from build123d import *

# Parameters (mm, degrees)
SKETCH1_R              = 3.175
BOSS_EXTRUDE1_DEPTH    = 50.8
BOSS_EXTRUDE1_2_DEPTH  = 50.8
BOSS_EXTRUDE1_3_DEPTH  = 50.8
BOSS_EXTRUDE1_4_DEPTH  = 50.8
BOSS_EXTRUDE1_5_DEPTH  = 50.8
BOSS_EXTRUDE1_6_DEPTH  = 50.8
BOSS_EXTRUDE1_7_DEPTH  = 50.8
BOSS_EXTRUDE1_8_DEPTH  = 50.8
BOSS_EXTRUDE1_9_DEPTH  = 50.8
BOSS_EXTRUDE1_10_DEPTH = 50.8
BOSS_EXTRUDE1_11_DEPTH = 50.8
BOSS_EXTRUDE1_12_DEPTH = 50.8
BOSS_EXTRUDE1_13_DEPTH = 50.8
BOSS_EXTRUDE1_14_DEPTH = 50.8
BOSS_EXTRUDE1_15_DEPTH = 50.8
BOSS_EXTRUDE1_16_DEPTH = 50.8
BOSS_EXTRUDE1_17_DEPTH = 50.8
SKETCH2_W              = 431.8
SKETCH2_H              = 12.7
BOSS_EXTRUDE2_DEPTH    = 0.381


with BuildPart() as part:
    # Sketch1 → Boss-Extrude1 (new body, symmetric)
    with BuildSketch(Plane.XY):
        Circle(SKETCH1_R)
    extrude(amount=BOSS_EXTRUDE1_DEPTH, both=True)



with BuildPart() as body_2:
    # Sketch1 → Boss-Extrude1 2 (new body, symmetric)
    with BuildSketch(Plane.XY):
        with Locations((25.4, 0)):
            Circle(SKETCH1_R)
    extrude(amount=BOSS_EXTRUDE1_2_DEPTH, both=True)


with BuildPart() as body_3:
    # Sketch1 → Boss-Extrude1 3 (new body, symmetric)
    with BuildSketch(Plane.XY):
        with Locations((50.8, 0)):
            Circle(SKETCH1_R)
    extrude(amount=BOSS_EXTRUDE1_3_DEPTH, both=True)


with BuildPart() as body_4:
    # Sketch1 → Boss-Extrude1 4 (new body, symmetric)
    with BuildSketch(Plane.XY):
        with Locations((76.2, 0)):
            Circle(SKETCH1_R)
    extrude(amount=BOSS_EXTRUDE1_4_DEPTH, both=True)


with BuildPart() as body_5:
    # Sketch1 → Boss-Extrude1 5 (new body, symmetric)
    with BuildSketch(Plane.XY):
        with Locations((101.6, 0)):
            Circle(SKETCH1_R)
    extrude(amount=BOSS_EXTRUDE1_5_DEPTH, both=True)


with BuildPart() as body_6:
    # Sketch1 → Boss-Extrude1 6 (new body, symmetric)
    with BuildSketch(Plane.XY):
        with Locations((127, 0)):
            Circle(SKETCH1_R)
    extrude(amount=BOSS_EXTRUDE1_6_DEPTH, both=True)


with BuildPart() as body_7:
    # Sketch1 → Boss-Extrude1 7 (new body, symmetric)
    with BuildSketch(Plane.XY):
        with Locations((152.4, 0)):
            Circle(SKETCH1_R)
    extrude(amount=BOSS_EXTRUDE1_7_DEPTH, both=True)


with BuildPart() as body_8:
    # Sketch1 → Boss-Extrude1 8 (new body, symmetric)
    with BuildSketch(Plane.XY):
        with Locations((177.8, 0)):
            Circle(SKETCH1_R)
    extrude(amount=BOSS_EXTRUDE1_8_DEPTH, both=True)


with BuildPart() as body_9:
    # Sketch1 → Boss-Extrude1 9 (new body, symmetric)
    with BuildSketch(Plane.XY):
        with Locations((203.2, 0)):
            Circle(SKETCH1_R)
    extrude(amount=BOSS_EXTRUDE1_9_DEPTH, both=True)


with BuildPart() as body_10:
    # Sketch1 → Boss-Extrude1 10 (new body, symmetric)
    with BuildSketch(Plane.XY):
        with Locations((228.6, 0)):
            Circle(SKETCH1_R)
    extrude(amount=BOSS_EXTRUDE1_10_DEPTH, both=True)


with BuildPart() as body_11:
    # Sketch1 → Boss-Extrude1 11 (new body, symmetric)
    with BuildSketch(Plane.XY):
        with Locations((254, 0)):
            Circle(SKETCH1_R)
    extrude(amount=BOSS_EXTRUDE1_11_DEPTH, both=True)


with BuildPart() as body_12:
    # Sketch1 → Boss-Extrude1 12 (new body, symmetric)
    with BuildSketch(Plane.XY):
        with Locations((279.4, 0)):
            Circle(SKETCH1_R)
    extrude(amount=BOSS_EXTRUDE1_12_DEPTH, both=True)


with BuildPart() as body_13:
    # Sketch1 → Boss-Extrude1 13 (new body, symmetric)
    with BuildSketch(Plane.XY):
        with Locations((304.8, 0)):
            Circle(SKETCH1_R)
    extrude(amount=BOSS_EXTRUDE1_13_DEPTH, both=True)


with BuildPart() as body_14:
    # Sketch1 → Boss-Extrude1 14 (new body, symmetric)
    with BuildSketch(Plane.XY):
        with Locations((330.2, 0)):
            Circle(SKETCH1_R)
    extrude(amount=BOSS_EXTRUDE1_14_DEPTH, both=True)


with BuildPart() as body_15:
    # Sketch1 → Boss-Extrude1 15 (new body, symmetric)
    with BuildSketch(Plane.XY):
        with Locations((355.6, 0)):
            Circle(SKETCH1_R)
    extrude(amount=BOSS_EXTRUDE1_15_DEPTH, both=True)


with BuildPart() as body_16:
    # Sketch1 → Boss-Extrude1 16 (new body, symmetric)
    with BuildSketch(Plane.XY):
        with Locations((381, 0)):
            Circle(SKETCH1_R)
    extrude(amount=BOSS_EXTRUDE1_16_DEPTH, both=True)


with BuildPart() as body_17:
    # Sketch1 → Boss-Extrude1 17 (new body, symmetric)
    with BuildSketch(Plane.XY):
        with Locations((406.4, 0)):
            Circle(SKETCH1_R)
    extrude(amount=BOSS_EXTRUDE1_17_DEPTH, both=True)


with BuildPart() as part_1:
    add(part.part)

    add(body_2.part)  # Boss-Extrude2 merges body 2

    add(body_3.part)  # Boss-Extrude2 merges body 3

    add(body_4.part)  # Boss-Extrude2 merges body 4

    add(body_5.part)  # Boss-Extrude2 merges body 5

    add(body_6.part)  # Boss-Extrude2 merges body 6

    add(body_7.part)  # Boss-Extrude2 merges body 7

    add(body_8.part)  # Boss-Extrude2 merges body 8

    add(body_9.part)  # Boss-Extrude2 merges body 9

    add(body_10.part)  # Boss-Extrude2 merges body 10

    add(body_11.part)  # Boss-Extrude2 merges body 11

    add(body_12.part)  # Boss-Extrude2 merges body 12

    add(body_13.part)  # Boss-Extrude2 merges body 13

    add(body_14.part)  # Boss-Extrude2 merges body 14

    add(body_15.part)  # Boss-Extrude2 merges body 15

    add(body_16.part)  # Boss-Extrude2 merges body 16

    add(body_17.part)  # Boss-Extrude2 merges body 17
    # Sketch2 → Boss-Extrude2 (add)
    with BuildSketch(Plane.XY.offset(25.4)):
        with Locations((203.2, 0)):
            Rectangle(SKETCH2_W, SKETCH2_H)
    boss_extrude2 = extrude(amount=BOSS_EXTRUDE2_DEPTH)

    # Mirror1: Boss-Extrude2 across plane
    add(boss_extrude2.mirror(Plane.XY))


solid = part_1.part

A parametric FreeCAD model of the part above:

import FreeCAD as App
import Part
import Sketcher

V = App.Vector
Q = App.Units.Quantity

doc = App.newDocument("Part")
body = doc.addObject("PartDesign::Body", "Body")

sketch1 = doc.addObject("Sketcher::SketchObject", "Sketch")
body.addObject(sketch1)
sketch1.AttachmentSupport = (doc.XY_Plane, [""])
sketch1.MapMode = "FlatFace"
sketch1.addGeometry(Part.Circle(V(0, 0, 0), V(0, 0, 1), 3.2), False)
sketch1.addConstraint([
    Sketcher.Constraint("Coincident", 0, 3, -1, 1),
    Sketcher.Constraint("Diameter", 0, Q("0.25 in")),
])
pad1 = doc.addObject("PartDesign::Pad", "Pad")
body.addObject(pad1)
pad1.Profile = sketch1
pad1.Length = Q("4 in")
pad1.Midplane = True
body2 = doc.addObject("PartDesign::Body", "Body001")

sketch2 = doc.addObject("Sketcher::SketchObject", "Sketch001")
body2.addObject(sketch2)
sketch2.AttachmentSupport = (doc.getObject("XY_Plane001"), [""])
sketch2.MapMode = "FlatFace"
sketch2.addGeometry(Part.Circle(V(25.4, 0, 0), V(0, 0, 1), 3.2), False)
sketch2.addConstraint([
    Sketcher.Constraint("PointOnObject", 0, 3, -1),
    Sketcher.Constraint("Diameter", 0, Q("0.25 in")),
    Sketcher.Constraint("DistanceX", -1, 1, 0, 3, Q("1 in")),
])
pad2 = doc.addObject("PartDesign::Pad", "Pad001")
body2.addObject(pad2)
pad2.Profile = sketch2
pad2.Length = Q("4 in")
pad2.Midplane = True
body3 = doc.addObject("PartDesign::Body", "Body002")

sketch3 = doc.addObject("Sketcher::SketchObject", "Sketch002")
body3.addObject(sketch3)
sketch3.AttachmentSupport = (doc.getObject("XY_Plane002"), [""])
sketch3.MapMode = "FlatFace"
sketch3.addGeometry(Part.Circle(V(50.8, 0, 0), V(0, 0, 1), 3.2), False)
sketch3.addConstraint([
    Sketcher.Constraint("PointOnObject", 0, 3, -1),
    Sketcher.Constraint("Diameter", 0, Q("0.25 in")),
    Sketcher.Constraint("DistanceX", -1, 1, 0, 3, Q("2 in")),
])
pad3 = doc.addObject("PartDesign::Pad", "Pad002")
body3.addObject(pad3)
pad3.Profile = sketch3
pad3.Length = Q("4 in")
pad3.Midplane = True
body4 = doc.addObject("PartDesign::Body", "Body003")

sketch4 = doc.addObject("Sketcher::SketchObject", "Sketch003")
body4.addObject(sketch4)
sketch4.AttachmentSupport = (doc.getObject("XY_Plane003"), [""])
sketch4.MapMode = "FlatFace"
sketch4.addGeometry(Part.Circle(V(76.2, 0, 0), V(0, 0, 1), 3.2), False)
sketch4.addConstraint([
    Sketcher.Constraint("PointOnObject", 0, 3, -1),
    Sketcher.Constraint("Diameter", 0, Q("0.25 in")),
    Sketcher.Constraint("DistanceX", -1, 1, 0, 3, Q("3 in")),
])
pad4 = doc.addObject("PartDesign::Pad", "Pad003")
body4.addObject(pad4)
pad4.Profile = sketch4
pad4.Length = Q("4 in")
pad4.Midplane = True
body5 = doc.addObject("PartDesign::Body", "Body004")

sketch5 = doc.addObject("Sketcher::SketchObject", "Sketch004")
body5.addObject(sketch5)
sketch5.AttachmentSupport = (doc.getObject("XY_Plane004"), [""])
sketch5.MapMode = "FlatFace"
sketch5.addGeometry(Part.Circle(V(101.6, 0, 0), V(0, 0, 1), 3.2), False)
sketch5.addConstraint([
    Sketcher.Constraint("PointOnObject", 0, 3, -1),
    Sketcher.Constraint("Diameter", 0, Q("0.25 in")),
    Sketcher.Constraint("DistanceX", -1, 1, 0, 3, Q("4 in")),
])
pad5 = doc.addObject("PartDesign::Pad", "Pad004")
body5.addObject(pad5)
pad5.Profile = sketch5
pad5.Length = Q("4 in")
pad5.Midplane = True
body6 = doc.addObject("PartDesign::Body", "Body005")

sketch6 = doc.addObject("Sketcher::SketchObject", "Sketch005")
body6.addObject(sketch6)
sketch6.AttachmentSupport = (doc.getObject("XY_Plane005"), [""])
sketch6.MapMode = "FlatFace"
sketch6.addGeometry(Part.Circle(V(127, 0, 0), V(0, 0, 1), 3.2), False)
sketch6.addConstraint([
    Sketcher.Constraint("PointOnObject", 0, 3, -1),
    Sketcher.Constraint("Diameter", 0, Q("0.25 in")),
    Sketcher.Constraint("DistanceX", -1, 1, 0, 3, Q("5 in")),
])
pad6 = doc.addObject("PartDesign::Pad", "Pad005")
body6.addObject(pad6)
pad6.Profile = sketch6
pad6.Length = Q("4 in")
pad6.Midplane = True
body7 = doc.addObject("PartDesign::Body", "Body006")

sketch7 = doc.addObject("Sketcher::SketchObject", "Sketch006")
body7.addObject(sketch7)
sketch7.AttachmentSupport = (doc.getObject("XY_Plane006"), [""])
sketch7.MapMode = "FlatFace"
sketch7.addGeometry(Part.Circle(V(152.4, 0, 0), V(0, 0, 1), 3.2), False)
sketch7.addConstraint([
    Sketcher.Constraint("PointOnObject", 0, 3, -1),
    Sketcher.Constraint("Diameter", 0, Q("0.25 in")),
    Sketcher.Constraint("DistanceX", -1, 1, 0, 3, Q("6 in")),
])
pad7 = doc.addObject("PartDesign::Pad", "Pad006")
body7.addObject(pad7)
pad7.Profile = sketch7
pad7.Length = Q("4 in")
pad7.Midplane = True
body8 = doc.addObject("PartDesign::Body", "Body007")

sketch8 = doc.addObject("Sketcher::SketchObject", "Sketch007")
body8.addObject(sketch8)
sketch8.AttachmentSupport = (doc.getObject("XY_Plane007"), [""])
sketch8.MapMode = "FlatFace"
sketch8.addGeometry(Part.Circle(V(177.8, 0, 0), V(0, 0, 1), 3.2), False)
sketch8.addConstraint([
    Sketcher.Constraint("PointOnObject", 0, 3, -1),
    Sketcher.Constraint("Diameter", 0, Q("0.25 in")),
    Sketcher.Constraint("DistanceX", -1, 1, 0, 3, Q("7 in")),
])
pad8 = doc.addObject("PartDesign::Pad", "Pad007")
body8.addObject(pad8)
pad8.Profile = sketch8
pad8.Length = Q("4 in")
pad8.Midplane = True
body9 = doc.addObject("PartDesign::Body", "Body008")

sketch9 = doc.addObject("Sketcher::SketchObject", "Sketch008")
body9.addObject(sketch9)
sketch9.AttachmentSupport = (doc.getObject("XY_Plane008"), [""])
sketch9.MapMode = "FlatFace"
sketch9.addGeometry(Part.Circle(V(203.2, 0, 0), V(0, 0, 1), 3.2), False)
sketch9.addConstraint([
    Sketcher.Constraint("PointOnObject", 0, 3, -1),
    Sketcher.Constraint("Diameter", 0, Q("0.25 in")),
    Sketcher.Constraint("DistanceX", -1, 1, 0, 3, Q("8 in")),
])
pad9 = doc.addObject("PartDesign::Pad", "Pad008")
body9.addObject(pad9)
pad9.Profile = sketch9
pad9.Length = Q("4 in")
pad9.Midplane = True
body10 = doc.addObject("PartDesign::Body", "Body009")

sketch10 = doc.addObject("Sketcher::SketchObject", "Sketch009")
body10.addObject(sketch10)
sketch10.AttachmentSupport = (doc.getObject("XY_Plane009"), [""])
sketch10.MapMode = "FlatFace"
sketch10.addGeometry(Part.Circle(V(228.6, 0, 0), V(0, 0, 1), 3.2), False)
sketch10.addConstraint([
    Sketcher.Constraint("PointOnObject", 0, 3, -1),
    Sketcher.Constraint("Diameter", 0, Q("0.25 in")),
    Sketcher.Constraint("DistanceX", -1, 1, 0, 3, Q("9 in")),
])
pad10 = doc.addObject("PartDesign::Pad", "Pad009")
body10.addObject(pad10)
pad10.Profile = sketch10
pad10.Length = Q("4 in")
pad10.Midplane = True
body11 = doc.addObject("PartDesign::Body", "Body010")

sketch11 = doc.addObject("Sketcher::SketchObject", "Sketch010")
body11.addObject(sketch11)
sketch11.AttachmentSupport = (doc.getObject("XY_Plane010"), [""])
sketch11.MapMode = "FlatFace"
sketch11.addGeometry(Part.Circle(V(254, 0, 0), V(0, 0, 1), 3.2), False)
sketch11.addConstraint([
    Sketcher.Constraint("PointOnObject", 0, 3, -1),
    Sketcher.Constraint("Diameter", 0, Q("0.25 in")),
    Sketcher.Constraint("DistanceX", -1, 1, 0, 3, Q("10 in")),
])
pad11 = doc.addObject("PartDesign::Pad", "Pad010")
body11.addObject(pad11)
pad11.Profile = sketch11
pad11.Length = Q("4 in")
pad11.Midplane = True
body12 = doc.addObject("PartDesign::Body", "Body011")

sketch12 = doc.addObject("Sketcher::SketchObject", "Sketch011")
body12.addObject(sketch12)
sketch12.AttachmentSupport = (doc.getObject("XY_Plane011"), [""])
sketch12.MapMode = "FlatFace"
sketch12.addGeometry(Part.Circle(V(279.4, 0, 0), V(0, 0, 1), 3.2), False)
sketch12.addConstraint([
    Sketcher.Constraint("PointOnObject", 0, 3, -1),
    Sketcher.Constraint("Diameter", 0, Q("0.25 in")),
    Sketcher.Constraint("DistanceX", -1, 1, 0, 3, Q("11 in")),
])
pad12 = doc.addObject("PartDesign::Pad", "Pad011")
body12.addObject(pad12)
pad12.Profile = sketch12
pad12.Length = Q("4 in")
pad12.Midplane = True
body13 = doc.addObject("PartDesign::Body", "Body012")

sketch13 = doc.addObject("Sketcher::SketchObject", "Sketch012")
body13.addObject(sketch13)
sketch13.AttachmentSupport = (doc.getObject("XY_Plane012"), [""])
sketch13.MapMode = "FlatFace"
sketch13.addGeometry(Part.Circle(V(304.8, 0, 0), V(0, 0, 1), 3.2), False)
sketch13.addConstraint([
    Sketcher.Constraint("PointOnObject", 0, 3, -1),
    Sketcher.Constraint("Diameter", 0, Q("0.25 in")),
    Sketcher.Constraint("DistanceX", -1, 1, 0, 3, Q("12 in")),
])
pad13 = doc.addObject("PartDesign::Pad", "Pad012")
body13.addObject(pad13)
pad13.Profile = sketch13
pad13.Length = Q("4 in")
pad13.Midplane = True
body14 = doc.addObject("PartDesign::Body", "Body013")

sketch14 = doc.addObject("Sketcher::SketchObject", "Sketch013")
body14.addObject(sketch14)
sketch14.AttachmentSupport = (doc.getObject("XY_Plane013"), [""])
sketch14.MapMode = "FlatFace"
sketch14.addGeometry(Part.Circle(V(330.2, 0, 0), V(0, 0, 1), 3.2), False)
sketch14.addConstraint([
    Sketcher.Constraint("PointOnObject", 0, 3, -1),
    Sketcher.Constraint("Diameter", 0, Q("0.25 in")),
    Sketcher.Constraint("DistanceX", -1, 1, 0, 3, Q("13 in")),
])
pad14 = doc.addObject("PartDesign::Pad", "Pad013")
body14.addObject(pad14)
pad14.Profile = sketch14
pad14.Length = Q("4 in")
pad14.Midplane = True
body15 = doc.addObject("PartDesign::Body", "Body014")

sketch15 = doc.addObject("Sketcher::SketchObject", "Sketch014")
body15.addObject(sketch15)
sketch15.AttachmentSupport = (doc.getObject("XY_Plane014"), [""])
sketch15.MapMode = "FlatFace"
sketch15.addGeometry(Part.Circle(V(355.6, 0, 0), V(0, 0, 1), 3.2), False)
sketch15.addConstraint([
    Sketcher.Constraint("PointOnObject", 0, 3, -1),
    Sketcher.Constraint("Diameter", 0, Q("0.25 in")),
    Sketcher.Constraint("DistanceX", -1, 1, 0, 3, Q("14 in")),
])
pad15 = doc.addObject("PartDesign::Pad", "Pad014")
body15.addObject(pad15)
pad15.Profile = sketch15
pad15.Length = Q("4 in")
pad15.Midplane = True
body16 = doc.addObject("PartDesign::Body", "Body015")

sketch16 = doc.addObject("Sketcher::SketchObject", "Sketch015")
body16.addObject(sketch16)
sketch16.AttachmentSupport = (doc.getObject("XY_Plane015"), [""])
sketch16.MapMode = "FlatFace"
sketch16.addGeometry(Part.Circle(V(381, 0, 0), V(0, 0, 1), 3.2), False)
sketch16.addConstraint([
    Sketcher.Constraint("PointOnObject", 0, 3, -1),
    Sketcher.Constraint("Diameter", 0, Q("0.25 in")),
    Sketcher.Constraint("DistanceX", -1, 1, 0, 3, Q("15 in")),
])
pad16 = doc.addObject("PartDesign::Pad", "Pad015")
body16.addObject(pad16)
pad16.Profile = sketch16
pad16.Length = Q("4 in")
pad16.Midplane = True
body17 = doc.addObject("PartDesign::Body", "Body016")

sketch17 = doc.addObject("Sketcher::SketchObject", "Sketch016")
body17.addObject(sketch17)
sketch17.AttachmentSupport = (doc.getObject("XY_Plane016"), [""])
sketch17.MapMode = "FlatFace"
sketch17.addGeometry(Part.Circle(V(406.4, 0, 0), V(0, 0, 1), 3.2), False)
sketch17.addConstraint([
    Sketcher.Constraint("PointOnObject", 0, 3, -1),
    Sketcher.Constraint("Diameter", 0, Q("0.25 in")),
    Sketcher.Constraint("DistanceX", -1, 1, 0, 3, Q("16 in")),
])
pad17 = doc.addObject("PartDesign::Pad", "Pad016")
body17.addObject(pad17)
pad17.Profile = sketch17
pad17.Length = Q("4 in")
pad17.Midplane = True
body.AllowCompound = True
doc.recompute()

boolean = doc.addObject("PartDesign::Boolean", "Boolean")
body.addObject(boolean)
boolean.Type = "Fuse"
boolean.addObjects([body2])
doc.recompute()

boolean2 = doc.addObject("PartDesign::Boolean", "Boolean001")
body.addObject(boolean2)
boolean2.Type = "Fuse"
boolean2.addObjects([body3])
doc.recompute()

boolean3 = doc.addObject("PartDesign::Boolean", "Boolean002")
body.addObject(boolean3)
boolean3.Type = "Fuse"
boolean3.addObjects([body4])
doc.recompute()

boolean4 = doc.addObject("PartDesign::Boolean", "Boolean003")
body.addObject(boolean4)
boolean4.Type = "Fuse"
boolean4.addObjects([body5])
doc.recompute()

boolean5 = doc.addObject("PartDesign::Boolean", "Boolean004")
body.addObject(boolean5)
boolean5.Type = "Fuse"
boolean5.addObjects([body6])
doc.recompute()

boolean6 = doc.addObject("PartDesign::Boolean", "Boolean005")
body.addObject(boolean6)
boolean6.Type = "Fuse"
boolean6.addObjects([body7])
doc.recompute()

boolean7 = doc.addObject("PartDesign::Boolean", "Boolean006")
body.addObject(boolean7)
boolean7.Type = "Fuse"
boolean7.addObjects([body8])
doc.recompute()

boolean8 = doc.addObject("PartDesign::Boolean", "Boolean007")
body.addObject(boolean8)
boolean8.Type = "Fuse"
boolean8.addObjects([body9])
doc.recompute()

boolean9 = doc.addObject("PartDesign::Boolean", "Boolean008")
body.addObject(boolean9)
boolean9.Type = "Fuse"
boolean9.addObjects([body10])
doc.recompute()

boolean10 = doc.addObject("PartDesign::Boolean", "Boolean009")
body.addObject(boolean10)
boolean10.Type = "Fuse"
boolean10.addObjects([body11])
doc.recompute()

boolean11 = doc.addObject("PartDesign::Boolean", "Boolean010")
body.addObject(boolean11)
boolean11.Type = "Fuse"
boolean11.addObjects([body12])
doc.recompute()

boolean12 = doc.addObject("PartDesign::Boolean", "Boolean011")
body.addObject(boolean12)
boolean12.Type = "Fuse"
boolean12.addObjects([body13])
doc.recompute()

boolean13 = doc.addObject("PartDesign::Boolean", "Boolean012")
body.addObject(boolean13)
boolean13.Type = "Fuse"
boolean13.addObjects([body14])
doc.recompute()

boolean14 = doc.addObject("PartDesign::Boolean", "Boolean013")
body.addObject(boolean14)
boolean14.Type = "Fuse"
boolean14.addObjects([body15])
doc.recompute()

boolean15 = doc.addObject("PartDesign::Boolean", "Boolean014")
body.addObject(boolean15)
boolean15.Type = "Fuse"
boolean15.addObjects([body16])
doc.recompute()

boolean16 = doc.addObject("PartDesign::Boolean", "Boolean015")
body.addObject(boolean16)
boolean16.Type = "Fuse"
boolean16.addObjects([body17])

sketch18 = doc.addObject("Sketcher::SketchObject", "Sketch017")
body.addObject(sketch18)
sketch18.AttachmentSupport = (doc.XY_Plane, [""])
sketch18.MapMode = "FlatFace"
sketch18.AttachmentOffset = App.Placement(V(0, 0, 1 * 25.4), App.Rotation())
sketch18.addGeometry([
    Part.LineSegment(V(-13, 6, 0), V(-13, -6, 0)),
    Part.LineSegment(V(-13, -6, 0), V(419, -6, 0)),
    Part.LineSegment(V(419, -6, 0), V(419, 6, 0)),
    Part.LineSegment(V(419, 6, 0), V(-13, 6, 0)),
], False)
sketch18.addConstraint([
    Sketcher.Constraint("Coincident", 0, 2, 1, 1),
    Sketcher.Constraint("Coincident", 1, 2, 2, 1),
    Sketcher.Constraint("Coincident", 2, 2, 3, 1),
    Sketcher.Constraint("Coincident", 3, 2, 0, 1),
    Sketcher.Constraint("Vertical", 0),
    Sketcher.Constraint("Horizontal", 1),
    Sketcher.Constraint("Vertical", 2),
    Sketcher.Constraint("Horizontal", 3),
    Sketcher.Constraint("DistanceX", 1, 1, 1, 2, Q("17 in")),
    Sketcher.Constraint("DistanceY", 0, 2, 0, 1, Q("0.5 in")),
    Sketcher.Constraint("DistanceX", 0, 2, -1, 1, Q("0.5 in")),
    Sketcher.Constraint("DistanceY", 0, 2, -1, 1, Q("0.25 in")),
])
pad18 = doc.addObject("PartDesign::Pad", "Pad017")
body.addObject(pad18)
pad18.Profile = sketch18
pad18.Length = Q("0.015 in")
doc.recompute()

mirrored = doc.addObject("PartDesign::Mirrored", "Mirrored")
body.addObject(mirrored)
mirrored.Originals = [pad18]
mirrored.MirrorPlane = (doc.XY_Plane, [""])
body.Tip = mirrored

doc.recompute()
